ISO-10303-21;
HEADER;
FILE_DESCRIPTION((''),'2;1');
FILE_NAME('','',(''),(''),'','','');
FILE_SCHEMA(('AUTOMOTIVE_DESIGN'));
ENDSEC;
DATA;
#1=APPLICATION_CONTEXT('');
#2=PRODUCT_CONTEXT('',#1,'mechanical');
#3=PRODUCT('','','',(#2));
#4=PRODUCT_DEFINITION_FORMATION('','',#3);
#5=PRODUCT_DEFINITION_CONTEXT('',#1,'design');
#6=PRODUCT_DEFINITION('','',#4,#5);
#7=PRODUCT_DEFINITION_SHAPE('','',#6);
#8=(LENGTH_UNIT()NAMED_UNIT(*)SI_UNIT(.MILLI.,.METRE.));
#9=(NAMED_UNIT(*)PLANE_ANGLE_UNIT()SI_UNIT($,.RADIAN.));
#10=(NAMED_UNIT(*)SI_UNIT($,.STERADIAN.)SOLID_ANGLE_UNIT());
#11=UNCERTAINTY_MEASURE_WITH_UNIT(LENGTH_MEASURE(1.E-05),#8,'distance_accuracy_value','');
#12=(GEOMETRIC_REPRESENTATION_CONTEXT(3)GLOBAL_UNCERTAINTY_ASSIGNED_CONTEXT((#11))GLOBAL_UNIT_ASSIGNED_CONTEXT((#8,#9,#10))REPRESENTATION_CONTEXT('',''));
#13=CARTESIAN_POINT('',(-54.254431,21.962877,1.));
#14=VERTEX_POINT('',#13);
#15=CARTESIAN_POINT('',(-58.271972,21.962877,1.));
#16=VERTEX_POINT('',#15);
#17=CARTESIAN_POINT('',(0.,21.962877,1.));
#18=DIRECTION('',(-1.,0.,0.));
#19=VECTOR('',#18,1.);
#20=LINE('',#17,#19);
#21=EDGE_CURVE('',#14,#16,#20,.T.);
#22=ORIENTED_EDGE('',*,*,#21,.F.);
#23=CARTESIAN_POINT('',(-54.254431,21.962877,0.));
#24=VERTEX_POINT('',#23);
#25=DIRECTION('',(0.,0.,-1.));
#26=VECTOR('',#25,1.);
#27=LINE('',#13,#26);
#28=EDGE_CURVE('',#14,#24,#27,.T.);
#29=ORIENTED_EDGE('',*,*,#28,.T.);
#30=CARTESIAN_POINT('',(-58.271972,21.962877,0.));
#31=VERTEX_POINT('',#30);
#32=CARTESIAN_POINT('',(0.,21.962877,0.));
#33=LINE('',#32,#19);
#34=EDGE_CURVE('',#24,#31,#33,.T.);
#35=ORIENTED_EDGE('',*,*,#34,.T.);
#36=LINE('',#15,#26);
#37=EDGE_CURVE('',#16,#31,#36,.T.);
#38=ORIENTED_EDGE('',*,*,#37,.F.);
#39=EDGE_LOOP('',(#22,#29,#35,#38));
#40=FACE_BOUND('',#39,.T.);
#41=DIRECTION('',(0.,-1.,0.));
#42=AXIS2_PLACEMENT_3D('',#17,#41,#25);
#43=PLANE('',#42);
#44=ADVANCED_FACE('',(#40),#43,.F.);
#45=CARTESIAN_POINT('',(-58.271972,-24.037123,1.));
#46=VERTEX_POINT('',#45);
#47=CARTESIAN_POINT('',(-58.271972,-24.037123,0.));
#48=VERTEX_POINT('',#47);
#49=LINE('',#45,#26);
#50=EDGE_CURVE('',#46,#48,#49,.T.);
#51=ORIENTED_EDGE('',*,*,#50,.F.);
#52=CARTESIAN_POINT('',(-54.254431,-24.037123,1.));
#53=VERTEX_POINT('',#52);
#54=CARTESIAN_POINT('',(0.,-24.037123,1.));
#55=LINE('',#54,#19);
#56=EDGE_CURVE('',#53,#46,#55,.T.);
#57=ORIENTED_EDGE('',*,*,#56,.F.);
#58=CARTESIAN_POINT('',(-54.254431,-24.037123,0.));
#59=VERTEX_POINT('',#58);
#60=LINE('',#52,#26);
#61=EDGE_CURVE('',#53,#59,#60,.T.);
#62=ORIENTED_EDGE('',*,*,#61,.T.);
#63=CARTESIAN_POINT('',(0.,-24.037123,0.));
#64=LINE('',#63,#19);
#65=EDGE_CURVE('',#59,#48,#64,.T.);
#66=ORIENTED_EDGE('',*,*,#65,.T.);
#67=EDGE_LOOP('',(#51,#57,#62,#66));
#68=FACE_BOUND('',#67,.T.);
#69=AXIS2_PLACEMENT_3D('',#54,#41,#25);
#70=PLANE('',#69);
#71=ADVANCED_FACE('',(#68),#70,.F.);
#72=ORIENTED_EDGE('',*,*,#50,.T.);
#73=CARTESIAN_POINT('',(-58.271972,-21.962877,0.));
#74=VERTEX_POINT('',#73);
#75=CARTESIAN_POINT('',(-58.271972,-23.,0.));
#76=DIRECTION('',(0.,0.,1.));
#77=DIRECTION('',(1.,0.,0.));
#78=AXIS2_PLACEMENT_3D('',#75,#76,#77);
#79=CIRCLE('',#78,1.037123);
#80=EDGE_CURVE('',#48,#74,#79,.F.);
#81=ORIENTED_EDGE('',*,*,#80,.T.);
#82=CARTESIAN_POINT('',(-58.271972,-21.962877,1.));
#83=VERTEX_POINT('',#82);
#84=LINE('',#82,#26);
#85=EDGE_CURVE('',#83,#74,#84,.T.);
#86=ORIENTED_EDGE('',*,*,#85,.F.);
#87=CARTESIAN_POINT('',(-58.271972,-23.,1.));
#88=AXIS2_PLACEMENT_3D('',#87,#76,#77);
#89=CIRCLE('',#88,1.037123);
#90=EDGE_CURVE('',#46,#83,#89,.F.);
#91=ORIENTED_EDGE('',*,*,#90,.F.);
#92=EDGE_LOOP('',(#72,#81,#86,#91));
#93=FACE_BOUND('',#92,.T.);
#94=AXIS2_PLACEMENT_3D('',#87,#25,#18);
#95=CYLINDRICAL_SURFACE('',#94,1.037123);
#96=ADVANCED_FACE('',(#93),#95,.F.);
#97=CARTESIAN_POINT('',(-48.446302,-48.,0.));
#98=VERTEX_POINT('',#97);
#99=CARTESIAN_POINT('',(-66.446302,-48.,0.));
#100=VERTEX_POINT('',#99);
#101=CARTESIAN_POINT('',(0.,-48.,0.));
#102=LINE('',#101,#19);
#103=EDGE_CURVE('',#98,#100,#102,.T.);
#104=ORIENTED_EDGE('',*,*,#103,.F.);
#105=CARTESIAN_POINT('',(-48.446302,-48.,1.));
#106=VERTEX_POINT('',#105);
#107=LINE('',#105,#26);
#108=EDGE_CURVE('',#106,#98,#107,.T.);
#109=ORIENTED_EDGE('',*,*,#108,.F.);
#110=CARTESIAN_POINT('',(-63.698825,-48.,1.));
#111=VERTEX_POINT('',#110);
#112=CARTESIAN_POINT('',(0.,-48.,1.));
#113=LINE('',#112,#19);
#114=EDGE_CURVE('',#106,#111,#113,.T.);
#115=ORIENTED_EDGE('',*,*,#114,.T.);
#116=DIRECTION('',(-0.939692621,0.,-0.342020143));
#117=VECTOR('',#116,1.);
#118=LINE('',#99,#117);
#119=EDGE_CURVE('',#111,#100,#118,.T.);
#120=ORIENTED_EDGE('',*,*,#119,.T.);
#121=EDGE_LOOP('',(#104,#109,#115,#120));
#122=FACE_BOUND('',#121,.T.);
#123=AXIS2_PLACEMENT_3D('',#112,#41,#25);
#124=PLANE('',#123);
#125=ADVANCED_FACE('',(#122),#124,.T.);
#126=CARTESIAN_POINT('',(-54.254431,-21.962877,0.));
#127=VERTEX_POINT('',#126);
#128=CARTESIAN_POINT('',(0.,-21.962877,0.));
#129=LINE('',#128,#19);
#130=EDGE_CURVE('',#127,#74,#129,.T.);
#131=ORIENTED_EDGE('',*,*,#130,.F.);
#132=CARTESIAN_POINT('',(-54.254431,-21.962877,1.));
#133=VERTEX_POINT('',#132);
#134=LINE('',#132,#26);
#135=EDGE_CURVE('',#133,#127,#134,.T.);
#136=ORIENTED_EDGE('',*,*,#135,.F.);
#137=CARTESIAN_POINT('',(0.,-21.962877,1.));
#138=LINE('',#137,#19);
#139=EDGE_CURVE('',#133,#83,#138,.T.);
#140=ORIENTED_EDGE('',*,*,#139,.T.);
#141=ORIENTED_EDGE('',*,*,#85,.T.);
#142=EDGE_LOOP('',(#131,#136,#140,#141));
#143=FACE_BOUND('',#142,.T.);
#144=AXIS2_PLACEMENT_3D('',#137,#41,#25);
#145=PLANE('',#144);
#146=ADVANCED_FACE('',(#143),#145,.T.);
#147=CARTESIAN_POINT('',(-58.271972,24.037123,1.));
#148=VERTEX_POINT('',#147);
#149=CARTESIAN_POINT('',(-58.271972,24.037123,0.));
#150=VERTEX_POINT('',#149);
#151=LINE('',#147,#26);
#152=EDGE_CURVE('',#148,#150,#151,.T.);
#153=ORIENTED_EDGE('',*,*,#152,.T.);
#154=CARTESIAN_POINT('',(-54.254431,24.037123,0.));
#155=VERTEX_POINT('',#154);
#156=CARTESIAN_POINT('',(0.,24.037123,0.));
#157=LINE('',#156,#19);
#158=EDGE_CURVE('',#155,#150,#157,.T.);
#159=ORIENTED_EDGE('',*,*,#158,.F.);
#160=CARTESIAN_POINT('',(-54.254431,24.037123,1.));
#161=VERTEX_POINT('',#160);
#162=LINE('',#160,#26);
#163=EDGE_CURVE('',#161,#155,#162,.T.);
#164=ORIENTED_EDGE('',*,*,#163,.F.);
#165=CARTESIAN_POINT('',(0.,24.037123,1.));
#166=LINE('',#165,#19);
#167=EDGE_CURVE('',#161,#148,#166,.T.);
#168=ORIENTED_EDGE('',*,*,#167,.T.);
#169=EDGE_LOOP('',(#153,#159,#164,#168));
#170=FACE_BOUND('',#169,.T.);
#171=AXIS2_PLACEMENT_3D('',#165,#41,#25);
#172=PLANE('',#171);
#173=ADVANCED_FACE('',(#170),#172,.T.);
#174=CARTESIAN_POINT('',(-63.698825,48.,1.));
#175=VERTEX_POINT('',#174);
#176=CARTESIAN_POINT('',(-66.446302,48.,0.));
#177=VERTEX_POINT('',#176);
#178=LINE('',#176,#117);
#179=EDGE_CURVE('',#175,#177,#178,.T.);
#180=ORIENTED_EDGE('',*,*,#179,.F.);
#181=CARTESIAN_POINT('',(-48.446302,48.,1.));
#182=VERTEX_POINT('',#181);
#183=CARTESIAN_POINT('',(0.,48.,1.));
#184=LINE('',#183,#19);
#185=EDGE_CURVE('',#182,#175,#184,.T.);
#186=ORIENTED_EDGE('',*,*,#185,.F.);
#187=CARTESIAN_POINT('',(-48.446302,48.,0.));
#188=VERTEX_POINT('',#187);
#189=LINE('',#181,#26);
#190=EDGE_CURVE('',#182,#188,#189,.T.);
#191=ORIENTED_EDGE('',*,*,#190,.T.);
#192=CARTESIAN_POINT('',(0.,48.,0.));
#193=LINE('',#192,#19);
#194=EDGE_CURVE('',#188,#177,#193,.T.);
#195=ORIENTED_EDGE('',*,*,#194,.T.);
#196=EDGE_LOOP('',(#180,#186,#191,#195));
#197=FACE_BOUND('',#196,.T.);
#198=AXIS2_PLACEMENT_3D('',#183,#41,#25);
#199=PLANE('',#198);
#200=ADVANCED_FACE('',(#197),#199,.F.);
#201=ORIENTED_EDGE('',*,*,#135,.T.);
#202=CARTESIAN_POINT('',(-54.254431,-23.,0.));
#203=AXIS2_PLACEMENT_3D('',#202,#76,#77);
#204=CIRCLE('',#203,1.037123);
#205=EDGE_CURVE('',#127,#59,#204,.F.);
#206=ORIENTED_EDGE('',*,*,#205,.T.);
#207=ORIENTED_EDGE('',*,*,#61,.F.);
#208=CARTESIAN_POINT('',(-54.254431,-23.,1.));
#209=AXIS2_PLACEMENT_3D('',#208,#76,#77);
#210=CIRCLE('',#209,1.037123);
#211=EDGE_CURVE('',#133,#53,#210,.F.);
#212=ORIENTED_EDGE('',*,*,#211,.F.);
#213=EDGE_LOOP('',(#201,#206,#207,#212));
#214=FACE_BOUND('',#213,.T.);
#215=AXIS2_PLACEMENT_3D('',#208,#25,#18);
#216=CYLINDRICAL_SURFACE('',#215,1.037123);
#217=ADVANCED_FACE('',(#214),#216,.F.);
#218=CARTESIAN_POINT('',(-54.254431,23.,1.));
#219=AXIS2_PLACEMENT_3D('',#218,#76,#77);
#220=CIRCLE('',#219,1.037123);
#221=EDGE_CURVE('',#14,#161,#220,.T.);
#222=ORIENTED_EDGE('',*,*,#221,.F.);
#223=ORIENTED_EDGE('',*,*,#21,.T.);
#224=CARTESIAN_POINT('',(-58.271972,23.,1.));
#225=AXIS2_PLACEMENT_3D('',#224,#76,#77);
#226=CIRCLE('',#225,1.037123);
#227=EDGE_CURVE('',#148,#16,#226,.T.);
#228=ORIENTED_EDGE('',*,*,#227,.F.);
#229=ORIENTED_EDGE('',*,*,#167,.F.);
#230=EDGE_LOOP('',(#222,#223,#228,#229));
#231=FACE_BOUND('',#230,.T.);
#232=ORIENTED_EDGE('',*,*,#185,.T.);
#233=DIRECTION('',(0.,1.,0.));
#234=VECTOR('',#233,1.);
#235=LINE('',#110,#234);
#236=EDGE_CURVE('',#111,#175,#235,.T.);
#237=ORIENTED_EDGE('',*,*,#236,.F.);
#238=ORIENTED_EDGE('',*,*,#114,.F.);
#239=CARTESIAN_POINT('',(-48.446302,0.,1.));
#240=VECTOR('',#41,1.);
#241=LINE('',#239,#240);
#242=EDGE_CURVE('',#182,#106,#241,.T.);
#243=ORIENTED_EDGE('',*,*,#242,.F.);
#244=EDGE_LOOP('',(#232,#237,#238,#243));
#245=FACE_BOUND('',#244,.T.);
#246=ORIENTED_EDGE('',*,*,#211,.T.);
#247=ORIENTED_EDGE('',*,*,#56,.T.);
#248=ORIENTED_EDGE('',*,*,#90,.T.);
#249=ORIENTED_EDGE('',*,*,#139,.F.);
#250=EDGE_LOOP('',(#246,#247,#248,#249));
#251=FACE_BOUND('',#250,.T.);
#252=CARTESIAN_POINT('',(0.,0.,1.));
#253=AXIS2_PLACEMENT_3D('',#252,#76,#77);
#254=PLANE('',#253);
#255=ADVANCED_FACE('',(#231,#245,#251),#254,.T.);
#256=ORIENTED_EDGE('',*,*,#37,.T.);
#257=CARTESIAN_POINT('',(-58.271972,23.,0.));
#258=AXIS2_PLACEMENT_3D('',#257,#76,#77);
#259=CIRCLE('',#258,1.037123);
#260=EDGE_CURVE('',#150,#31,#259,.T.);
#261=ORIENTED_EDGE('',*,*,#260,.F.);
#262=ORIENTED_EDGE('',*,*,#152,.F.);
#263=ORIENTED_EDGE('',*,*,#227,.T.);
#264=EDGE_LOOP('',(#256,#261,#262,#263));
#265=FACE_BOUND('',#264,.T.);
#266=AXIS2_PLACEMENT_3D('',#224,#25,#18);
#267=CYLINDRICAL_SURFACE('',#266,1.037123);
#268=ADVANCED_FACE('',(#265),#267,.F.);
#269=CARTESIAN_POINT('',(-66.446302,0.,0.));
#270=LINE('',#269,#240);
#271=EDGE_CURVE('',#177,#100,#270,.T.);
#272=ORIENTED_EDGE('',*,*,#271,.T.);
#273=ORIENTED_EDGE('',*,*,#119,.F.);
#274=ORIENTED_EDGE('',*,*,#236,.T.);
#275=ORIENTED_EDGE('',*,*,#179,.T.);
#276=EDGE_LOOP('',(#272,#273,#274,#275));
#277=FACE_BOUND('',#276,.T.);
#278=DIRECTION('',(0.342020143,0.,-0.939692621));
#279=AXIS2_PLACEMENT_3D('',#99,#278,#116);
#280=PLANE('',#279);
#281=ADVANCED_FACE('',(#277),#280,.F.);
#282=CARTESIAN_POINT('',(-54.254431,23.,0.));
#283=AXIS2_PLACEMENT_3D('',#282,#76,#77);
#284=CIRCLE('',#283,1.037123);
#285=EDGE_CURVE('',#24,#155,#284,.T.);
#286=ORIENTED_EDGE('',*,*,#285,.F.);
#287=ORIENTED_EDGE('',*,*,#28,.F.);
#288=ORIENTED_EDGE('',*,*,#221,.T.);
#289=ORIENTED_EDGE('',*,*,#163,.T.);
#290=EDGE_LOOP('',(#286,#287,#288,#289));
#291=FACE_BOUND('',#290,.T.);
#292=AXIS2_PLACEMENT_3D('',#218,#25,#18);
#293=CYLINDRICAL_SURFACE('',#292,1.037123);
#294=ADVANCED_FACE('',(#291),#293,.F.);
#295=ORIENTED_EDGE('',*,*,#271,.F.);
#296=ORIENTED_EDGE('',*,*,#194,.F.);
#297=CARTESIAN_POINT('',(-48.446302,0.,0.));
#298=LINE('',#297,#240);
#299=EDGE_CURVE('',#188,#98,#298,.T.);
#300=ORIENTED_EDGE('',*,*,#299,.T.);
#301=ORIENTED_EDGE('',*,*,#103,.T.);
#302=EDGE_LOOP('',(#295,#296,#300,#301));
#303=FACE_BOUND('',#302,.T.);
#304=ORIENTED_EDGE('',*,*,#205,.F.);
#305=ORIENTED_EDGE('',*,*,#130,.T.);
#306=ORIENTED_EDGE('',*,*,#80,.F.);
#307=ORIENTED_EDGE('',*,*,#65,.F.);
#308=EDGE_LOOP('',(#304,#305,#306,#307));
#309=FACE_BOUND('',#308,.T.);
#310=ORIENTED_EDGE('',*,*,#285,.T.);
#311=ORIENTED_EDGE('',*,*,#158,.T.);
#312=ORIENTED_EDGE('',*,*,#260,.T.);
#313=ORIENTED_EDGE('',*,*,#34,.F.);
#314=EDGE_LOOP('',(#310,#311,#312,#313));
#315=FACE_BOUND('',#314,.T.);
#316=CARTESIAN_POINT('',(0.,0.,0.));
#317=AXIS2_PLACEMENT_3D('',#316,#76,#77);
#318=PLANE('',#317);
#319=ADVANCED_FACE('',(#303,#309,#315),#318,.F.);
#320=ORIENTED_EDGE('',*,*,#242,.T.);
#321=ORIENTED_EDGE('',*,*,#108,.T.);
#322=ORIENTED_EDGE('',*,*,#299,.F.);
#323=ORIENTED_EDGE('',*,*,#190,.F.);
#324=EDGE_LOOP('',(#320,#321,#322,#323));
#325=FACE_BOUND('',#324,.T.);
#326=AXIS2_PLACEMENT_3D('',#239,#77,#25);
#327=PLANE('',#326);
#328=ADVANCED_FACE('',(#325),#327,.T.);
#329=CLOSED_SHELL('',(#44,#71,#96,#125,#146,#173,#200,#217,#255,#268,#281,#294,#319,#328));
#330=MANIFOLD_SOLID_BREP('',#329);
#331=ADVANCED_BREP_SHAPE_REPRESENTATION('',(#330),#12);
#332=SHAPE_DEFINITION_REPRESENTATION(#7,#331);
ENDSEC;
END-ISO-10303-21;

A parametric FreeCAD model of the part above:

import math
import FreeCAD as App
import Part
import Sketcher
from FreeCAD import Vector
Q = App.Units.Quantity


def add_polygon(sketch, points):
    """Adds a closed chain of lines whose ends are joined by coincident constraints."""
    first, n = sketch.GeometryCount, len(points)
    for a, b in zip(points, points[1:] + points[:1]):
        sketch.addGeometry(Part.LineSegment(App.Vector(*a, 0), App.Vector(*b, 0)), False)
    for i in range(n):
        sketch.addConstraint(Sketcher.Constraint("Coincident", first + i, 2, first + (i + 1) % n, 1))

doc = App.newDocument("Part")
params = doc.addObject("Spreadsheet::Sheet", "Params")
for row, (alias, value) in enumerate([
    ("sketch1_width", "18 mm"),
    ("sketch1_height", "96 mm"),
    ("pad1_length", "1 mm"),
    ("sketch2_height", "1 mm"),
], start=1):
    params.set(f"A{row}", alias)
    params.set(f"B{row}", "=" + value)
    params.setAlias(f"B{row}", alias)

body = doc.addObject("PartDesign::Body", "Body")

# Sketch on XY plane
sketch1 = doc.addObject("Sketcher::SketchObject", "Sketch")
body.addObject(sketch1)
sketch1.AttachmentSupport = (doc.XY_Plane, [""])
sketch1.MapMode = "FlatFace"
add_polygon(sketch1, [(-66.4, 48), (-66.4, -48), (-48.4, -48), (-48.4, 48)])  # lines 0-3
sketch1.addGeometry(Part.LineSegment(Vector(-58.3, -22, 0), Vector(-54.3, -22, 0)), False)  # 4
sketch1.addGeometry(Part.ArcOfCircle(Part.Circle(Vector(-54.3, -23, 0), Vector(0, 0, 1), 1), math.radians(-90), math.radians(90)), False)  # 5
sketch1.addGeometry(Part.LineSegment(Vector(-54.3, -24, 0), Vector(-58.3, -24, 0)), False)  # 6
sketch1.addGeometry(Part.ArcOfCircle(Part.Circle(Vector(-58.3, -23, 0), Vector(0, 0, 1), 1), math.radians(90), math.radians(270)), False)  # 7
sketch1.addGeometry(Part.ArcOfCircle(Part.Circle(Vector(-54.3, 23, 0), Vector(0, 0, 1), 1), math.radians(-90), math.radians(90)), False)  # 8
sketch1.addGeometry(Part.LineSegment(Vector(-54.3, 22, 0), Vector(-58.3, 22, 0)), False)  # 9
sketch1.addGeometry(Part.ArcOfCircle(Part.Circle(Vector(-58.3, 23, 0), Vector(0, 0, 1), 1), math.radians(90), math.radians(270)), False)  # 10
sketch1.addGeometry(Part.LineSegment(Vector(-58.3, 24, 0), Vector(-54.3, 24, 0)), False)  # 11
sketch1.addConstraint([
    Sketcher.Constraint("Tangent", 4, 2, 5, 2),
    Sketcher.Constraint("Tangent", 5, 1, 6, 1),
    Sketcher.Constraint("Tangent", 6, 2, 7, 2),
    Sketcher.Constraint("Tangent", 7, 1, 4, 1),
    Sketcher.Constraint("Tangent", 8, 1, 9, 1),
    Sketcher.Constraint("Tangent", 9, 2, 10, 2),
    Sketcher.Constraint("Tangent", 10, 1, 11, 1),
    Sketcher.Constraint("Tangent", 11, 2, 8, 2),
    Sketcher.Constraint("Vertical", 0),
    Sketcher.Constraint("Horizontal", 1),
    Sketcher.Constraint("Vertical", 2),
    Sketcher.Constraint("Horizontal", 3),
    Sketcher.Constraint("Horizontal", 4),
    Sketcher.Constraint("Horizontal", 6),
    Sketcher.Constraint("Horizontal", 9),
    Sketcher.Constraint("Horizontal", 11),
    Sketcher.Constraint("Equal", 7, 8),
    Sketcher.Constraint("Symmetric", 5, 3, 8, 3, -1),
    Sketcher.Constraint("Vertical", 7, 3, 10, 3),
    Sketcher.Constraint("DistanceX", 1, 1, 1, 2, 18.0),
    Sketcher.Constraint("DistanceY", 0, 2, 0, 1, 96.0),
    Sketcher.Constraint("DistanceY", 5, 3, -1, 1, 23.0),
    Sketcher.Constraint("DistanceY", 0, 2, -1, 1, 48.0),
    Sketcher.Constraint("Radius", 5, 1.037123),
    Sketcher.Constraint("DistanceX", 4, 1, 4, 2, 4.017541),
    Sketcher.Constraint("DistanceX", 5, 3, -1, 1, 54.254431),
    Sketcher.Constraint("DistanceX", 0, 2, 7, 3, 8.17433),
])
sketch1.setExpression("Constraints[23]", "Params.sketch1_width")
sketch1.setExpression("Constraints[24]", "Params.sketch1_height")
pad1 = doc.addObject("PartDesign::Pad", "Pad")
body.addObject(pad1)
pad1.Profile = sketch1
pad1.setExpression("Length", "Params.pad1_length")

# Sketch on XZ plane
sketch2 = doc.addObject("Sketcher::SketchObject", "Sketch001")
body.addObject(sketch2)
sketch2.AttachmentSupport = (doc.XZ_Plane, [""])
sketch2.MapMode = "FlatFace"
sketch2.AttachmentOffset = App.Placement(Vector(0, 0, -48), App.Rotation())
add_polygon(sketch2, [(-63.7, 1), (-66.4, 0), (-66.4, 1)])  # lines 0-2
sketch2.addConstraint([
    Sketcher.Constraint("Vertical", 1),
    Sketcher.Constraint("Horizontal", 2),
    Sketcher.Constraint("PointOnObject", 0, 2, -1),
    Sketcher.Constraint("DistanceY", 1, 1, 1, 2, 1.0),
    Sketcher.Constraint("Angle", 0, Q("-160 deg")),
    Sketcher.Constraint("DistanceX", 0, 2, -1, 1, 66.446302),
])
sketch2.setExpression("Constraints[6]", "Params.sketch2_height")
pocket1 = doc.addObject("PartDesign::Pocket", "Pocket")
body.addObject(pocket1)
pocket1.Profile = sketch2
pocket1.Type = "ThroughAll"
pocket1.Reversed = True

doc.recompute()
